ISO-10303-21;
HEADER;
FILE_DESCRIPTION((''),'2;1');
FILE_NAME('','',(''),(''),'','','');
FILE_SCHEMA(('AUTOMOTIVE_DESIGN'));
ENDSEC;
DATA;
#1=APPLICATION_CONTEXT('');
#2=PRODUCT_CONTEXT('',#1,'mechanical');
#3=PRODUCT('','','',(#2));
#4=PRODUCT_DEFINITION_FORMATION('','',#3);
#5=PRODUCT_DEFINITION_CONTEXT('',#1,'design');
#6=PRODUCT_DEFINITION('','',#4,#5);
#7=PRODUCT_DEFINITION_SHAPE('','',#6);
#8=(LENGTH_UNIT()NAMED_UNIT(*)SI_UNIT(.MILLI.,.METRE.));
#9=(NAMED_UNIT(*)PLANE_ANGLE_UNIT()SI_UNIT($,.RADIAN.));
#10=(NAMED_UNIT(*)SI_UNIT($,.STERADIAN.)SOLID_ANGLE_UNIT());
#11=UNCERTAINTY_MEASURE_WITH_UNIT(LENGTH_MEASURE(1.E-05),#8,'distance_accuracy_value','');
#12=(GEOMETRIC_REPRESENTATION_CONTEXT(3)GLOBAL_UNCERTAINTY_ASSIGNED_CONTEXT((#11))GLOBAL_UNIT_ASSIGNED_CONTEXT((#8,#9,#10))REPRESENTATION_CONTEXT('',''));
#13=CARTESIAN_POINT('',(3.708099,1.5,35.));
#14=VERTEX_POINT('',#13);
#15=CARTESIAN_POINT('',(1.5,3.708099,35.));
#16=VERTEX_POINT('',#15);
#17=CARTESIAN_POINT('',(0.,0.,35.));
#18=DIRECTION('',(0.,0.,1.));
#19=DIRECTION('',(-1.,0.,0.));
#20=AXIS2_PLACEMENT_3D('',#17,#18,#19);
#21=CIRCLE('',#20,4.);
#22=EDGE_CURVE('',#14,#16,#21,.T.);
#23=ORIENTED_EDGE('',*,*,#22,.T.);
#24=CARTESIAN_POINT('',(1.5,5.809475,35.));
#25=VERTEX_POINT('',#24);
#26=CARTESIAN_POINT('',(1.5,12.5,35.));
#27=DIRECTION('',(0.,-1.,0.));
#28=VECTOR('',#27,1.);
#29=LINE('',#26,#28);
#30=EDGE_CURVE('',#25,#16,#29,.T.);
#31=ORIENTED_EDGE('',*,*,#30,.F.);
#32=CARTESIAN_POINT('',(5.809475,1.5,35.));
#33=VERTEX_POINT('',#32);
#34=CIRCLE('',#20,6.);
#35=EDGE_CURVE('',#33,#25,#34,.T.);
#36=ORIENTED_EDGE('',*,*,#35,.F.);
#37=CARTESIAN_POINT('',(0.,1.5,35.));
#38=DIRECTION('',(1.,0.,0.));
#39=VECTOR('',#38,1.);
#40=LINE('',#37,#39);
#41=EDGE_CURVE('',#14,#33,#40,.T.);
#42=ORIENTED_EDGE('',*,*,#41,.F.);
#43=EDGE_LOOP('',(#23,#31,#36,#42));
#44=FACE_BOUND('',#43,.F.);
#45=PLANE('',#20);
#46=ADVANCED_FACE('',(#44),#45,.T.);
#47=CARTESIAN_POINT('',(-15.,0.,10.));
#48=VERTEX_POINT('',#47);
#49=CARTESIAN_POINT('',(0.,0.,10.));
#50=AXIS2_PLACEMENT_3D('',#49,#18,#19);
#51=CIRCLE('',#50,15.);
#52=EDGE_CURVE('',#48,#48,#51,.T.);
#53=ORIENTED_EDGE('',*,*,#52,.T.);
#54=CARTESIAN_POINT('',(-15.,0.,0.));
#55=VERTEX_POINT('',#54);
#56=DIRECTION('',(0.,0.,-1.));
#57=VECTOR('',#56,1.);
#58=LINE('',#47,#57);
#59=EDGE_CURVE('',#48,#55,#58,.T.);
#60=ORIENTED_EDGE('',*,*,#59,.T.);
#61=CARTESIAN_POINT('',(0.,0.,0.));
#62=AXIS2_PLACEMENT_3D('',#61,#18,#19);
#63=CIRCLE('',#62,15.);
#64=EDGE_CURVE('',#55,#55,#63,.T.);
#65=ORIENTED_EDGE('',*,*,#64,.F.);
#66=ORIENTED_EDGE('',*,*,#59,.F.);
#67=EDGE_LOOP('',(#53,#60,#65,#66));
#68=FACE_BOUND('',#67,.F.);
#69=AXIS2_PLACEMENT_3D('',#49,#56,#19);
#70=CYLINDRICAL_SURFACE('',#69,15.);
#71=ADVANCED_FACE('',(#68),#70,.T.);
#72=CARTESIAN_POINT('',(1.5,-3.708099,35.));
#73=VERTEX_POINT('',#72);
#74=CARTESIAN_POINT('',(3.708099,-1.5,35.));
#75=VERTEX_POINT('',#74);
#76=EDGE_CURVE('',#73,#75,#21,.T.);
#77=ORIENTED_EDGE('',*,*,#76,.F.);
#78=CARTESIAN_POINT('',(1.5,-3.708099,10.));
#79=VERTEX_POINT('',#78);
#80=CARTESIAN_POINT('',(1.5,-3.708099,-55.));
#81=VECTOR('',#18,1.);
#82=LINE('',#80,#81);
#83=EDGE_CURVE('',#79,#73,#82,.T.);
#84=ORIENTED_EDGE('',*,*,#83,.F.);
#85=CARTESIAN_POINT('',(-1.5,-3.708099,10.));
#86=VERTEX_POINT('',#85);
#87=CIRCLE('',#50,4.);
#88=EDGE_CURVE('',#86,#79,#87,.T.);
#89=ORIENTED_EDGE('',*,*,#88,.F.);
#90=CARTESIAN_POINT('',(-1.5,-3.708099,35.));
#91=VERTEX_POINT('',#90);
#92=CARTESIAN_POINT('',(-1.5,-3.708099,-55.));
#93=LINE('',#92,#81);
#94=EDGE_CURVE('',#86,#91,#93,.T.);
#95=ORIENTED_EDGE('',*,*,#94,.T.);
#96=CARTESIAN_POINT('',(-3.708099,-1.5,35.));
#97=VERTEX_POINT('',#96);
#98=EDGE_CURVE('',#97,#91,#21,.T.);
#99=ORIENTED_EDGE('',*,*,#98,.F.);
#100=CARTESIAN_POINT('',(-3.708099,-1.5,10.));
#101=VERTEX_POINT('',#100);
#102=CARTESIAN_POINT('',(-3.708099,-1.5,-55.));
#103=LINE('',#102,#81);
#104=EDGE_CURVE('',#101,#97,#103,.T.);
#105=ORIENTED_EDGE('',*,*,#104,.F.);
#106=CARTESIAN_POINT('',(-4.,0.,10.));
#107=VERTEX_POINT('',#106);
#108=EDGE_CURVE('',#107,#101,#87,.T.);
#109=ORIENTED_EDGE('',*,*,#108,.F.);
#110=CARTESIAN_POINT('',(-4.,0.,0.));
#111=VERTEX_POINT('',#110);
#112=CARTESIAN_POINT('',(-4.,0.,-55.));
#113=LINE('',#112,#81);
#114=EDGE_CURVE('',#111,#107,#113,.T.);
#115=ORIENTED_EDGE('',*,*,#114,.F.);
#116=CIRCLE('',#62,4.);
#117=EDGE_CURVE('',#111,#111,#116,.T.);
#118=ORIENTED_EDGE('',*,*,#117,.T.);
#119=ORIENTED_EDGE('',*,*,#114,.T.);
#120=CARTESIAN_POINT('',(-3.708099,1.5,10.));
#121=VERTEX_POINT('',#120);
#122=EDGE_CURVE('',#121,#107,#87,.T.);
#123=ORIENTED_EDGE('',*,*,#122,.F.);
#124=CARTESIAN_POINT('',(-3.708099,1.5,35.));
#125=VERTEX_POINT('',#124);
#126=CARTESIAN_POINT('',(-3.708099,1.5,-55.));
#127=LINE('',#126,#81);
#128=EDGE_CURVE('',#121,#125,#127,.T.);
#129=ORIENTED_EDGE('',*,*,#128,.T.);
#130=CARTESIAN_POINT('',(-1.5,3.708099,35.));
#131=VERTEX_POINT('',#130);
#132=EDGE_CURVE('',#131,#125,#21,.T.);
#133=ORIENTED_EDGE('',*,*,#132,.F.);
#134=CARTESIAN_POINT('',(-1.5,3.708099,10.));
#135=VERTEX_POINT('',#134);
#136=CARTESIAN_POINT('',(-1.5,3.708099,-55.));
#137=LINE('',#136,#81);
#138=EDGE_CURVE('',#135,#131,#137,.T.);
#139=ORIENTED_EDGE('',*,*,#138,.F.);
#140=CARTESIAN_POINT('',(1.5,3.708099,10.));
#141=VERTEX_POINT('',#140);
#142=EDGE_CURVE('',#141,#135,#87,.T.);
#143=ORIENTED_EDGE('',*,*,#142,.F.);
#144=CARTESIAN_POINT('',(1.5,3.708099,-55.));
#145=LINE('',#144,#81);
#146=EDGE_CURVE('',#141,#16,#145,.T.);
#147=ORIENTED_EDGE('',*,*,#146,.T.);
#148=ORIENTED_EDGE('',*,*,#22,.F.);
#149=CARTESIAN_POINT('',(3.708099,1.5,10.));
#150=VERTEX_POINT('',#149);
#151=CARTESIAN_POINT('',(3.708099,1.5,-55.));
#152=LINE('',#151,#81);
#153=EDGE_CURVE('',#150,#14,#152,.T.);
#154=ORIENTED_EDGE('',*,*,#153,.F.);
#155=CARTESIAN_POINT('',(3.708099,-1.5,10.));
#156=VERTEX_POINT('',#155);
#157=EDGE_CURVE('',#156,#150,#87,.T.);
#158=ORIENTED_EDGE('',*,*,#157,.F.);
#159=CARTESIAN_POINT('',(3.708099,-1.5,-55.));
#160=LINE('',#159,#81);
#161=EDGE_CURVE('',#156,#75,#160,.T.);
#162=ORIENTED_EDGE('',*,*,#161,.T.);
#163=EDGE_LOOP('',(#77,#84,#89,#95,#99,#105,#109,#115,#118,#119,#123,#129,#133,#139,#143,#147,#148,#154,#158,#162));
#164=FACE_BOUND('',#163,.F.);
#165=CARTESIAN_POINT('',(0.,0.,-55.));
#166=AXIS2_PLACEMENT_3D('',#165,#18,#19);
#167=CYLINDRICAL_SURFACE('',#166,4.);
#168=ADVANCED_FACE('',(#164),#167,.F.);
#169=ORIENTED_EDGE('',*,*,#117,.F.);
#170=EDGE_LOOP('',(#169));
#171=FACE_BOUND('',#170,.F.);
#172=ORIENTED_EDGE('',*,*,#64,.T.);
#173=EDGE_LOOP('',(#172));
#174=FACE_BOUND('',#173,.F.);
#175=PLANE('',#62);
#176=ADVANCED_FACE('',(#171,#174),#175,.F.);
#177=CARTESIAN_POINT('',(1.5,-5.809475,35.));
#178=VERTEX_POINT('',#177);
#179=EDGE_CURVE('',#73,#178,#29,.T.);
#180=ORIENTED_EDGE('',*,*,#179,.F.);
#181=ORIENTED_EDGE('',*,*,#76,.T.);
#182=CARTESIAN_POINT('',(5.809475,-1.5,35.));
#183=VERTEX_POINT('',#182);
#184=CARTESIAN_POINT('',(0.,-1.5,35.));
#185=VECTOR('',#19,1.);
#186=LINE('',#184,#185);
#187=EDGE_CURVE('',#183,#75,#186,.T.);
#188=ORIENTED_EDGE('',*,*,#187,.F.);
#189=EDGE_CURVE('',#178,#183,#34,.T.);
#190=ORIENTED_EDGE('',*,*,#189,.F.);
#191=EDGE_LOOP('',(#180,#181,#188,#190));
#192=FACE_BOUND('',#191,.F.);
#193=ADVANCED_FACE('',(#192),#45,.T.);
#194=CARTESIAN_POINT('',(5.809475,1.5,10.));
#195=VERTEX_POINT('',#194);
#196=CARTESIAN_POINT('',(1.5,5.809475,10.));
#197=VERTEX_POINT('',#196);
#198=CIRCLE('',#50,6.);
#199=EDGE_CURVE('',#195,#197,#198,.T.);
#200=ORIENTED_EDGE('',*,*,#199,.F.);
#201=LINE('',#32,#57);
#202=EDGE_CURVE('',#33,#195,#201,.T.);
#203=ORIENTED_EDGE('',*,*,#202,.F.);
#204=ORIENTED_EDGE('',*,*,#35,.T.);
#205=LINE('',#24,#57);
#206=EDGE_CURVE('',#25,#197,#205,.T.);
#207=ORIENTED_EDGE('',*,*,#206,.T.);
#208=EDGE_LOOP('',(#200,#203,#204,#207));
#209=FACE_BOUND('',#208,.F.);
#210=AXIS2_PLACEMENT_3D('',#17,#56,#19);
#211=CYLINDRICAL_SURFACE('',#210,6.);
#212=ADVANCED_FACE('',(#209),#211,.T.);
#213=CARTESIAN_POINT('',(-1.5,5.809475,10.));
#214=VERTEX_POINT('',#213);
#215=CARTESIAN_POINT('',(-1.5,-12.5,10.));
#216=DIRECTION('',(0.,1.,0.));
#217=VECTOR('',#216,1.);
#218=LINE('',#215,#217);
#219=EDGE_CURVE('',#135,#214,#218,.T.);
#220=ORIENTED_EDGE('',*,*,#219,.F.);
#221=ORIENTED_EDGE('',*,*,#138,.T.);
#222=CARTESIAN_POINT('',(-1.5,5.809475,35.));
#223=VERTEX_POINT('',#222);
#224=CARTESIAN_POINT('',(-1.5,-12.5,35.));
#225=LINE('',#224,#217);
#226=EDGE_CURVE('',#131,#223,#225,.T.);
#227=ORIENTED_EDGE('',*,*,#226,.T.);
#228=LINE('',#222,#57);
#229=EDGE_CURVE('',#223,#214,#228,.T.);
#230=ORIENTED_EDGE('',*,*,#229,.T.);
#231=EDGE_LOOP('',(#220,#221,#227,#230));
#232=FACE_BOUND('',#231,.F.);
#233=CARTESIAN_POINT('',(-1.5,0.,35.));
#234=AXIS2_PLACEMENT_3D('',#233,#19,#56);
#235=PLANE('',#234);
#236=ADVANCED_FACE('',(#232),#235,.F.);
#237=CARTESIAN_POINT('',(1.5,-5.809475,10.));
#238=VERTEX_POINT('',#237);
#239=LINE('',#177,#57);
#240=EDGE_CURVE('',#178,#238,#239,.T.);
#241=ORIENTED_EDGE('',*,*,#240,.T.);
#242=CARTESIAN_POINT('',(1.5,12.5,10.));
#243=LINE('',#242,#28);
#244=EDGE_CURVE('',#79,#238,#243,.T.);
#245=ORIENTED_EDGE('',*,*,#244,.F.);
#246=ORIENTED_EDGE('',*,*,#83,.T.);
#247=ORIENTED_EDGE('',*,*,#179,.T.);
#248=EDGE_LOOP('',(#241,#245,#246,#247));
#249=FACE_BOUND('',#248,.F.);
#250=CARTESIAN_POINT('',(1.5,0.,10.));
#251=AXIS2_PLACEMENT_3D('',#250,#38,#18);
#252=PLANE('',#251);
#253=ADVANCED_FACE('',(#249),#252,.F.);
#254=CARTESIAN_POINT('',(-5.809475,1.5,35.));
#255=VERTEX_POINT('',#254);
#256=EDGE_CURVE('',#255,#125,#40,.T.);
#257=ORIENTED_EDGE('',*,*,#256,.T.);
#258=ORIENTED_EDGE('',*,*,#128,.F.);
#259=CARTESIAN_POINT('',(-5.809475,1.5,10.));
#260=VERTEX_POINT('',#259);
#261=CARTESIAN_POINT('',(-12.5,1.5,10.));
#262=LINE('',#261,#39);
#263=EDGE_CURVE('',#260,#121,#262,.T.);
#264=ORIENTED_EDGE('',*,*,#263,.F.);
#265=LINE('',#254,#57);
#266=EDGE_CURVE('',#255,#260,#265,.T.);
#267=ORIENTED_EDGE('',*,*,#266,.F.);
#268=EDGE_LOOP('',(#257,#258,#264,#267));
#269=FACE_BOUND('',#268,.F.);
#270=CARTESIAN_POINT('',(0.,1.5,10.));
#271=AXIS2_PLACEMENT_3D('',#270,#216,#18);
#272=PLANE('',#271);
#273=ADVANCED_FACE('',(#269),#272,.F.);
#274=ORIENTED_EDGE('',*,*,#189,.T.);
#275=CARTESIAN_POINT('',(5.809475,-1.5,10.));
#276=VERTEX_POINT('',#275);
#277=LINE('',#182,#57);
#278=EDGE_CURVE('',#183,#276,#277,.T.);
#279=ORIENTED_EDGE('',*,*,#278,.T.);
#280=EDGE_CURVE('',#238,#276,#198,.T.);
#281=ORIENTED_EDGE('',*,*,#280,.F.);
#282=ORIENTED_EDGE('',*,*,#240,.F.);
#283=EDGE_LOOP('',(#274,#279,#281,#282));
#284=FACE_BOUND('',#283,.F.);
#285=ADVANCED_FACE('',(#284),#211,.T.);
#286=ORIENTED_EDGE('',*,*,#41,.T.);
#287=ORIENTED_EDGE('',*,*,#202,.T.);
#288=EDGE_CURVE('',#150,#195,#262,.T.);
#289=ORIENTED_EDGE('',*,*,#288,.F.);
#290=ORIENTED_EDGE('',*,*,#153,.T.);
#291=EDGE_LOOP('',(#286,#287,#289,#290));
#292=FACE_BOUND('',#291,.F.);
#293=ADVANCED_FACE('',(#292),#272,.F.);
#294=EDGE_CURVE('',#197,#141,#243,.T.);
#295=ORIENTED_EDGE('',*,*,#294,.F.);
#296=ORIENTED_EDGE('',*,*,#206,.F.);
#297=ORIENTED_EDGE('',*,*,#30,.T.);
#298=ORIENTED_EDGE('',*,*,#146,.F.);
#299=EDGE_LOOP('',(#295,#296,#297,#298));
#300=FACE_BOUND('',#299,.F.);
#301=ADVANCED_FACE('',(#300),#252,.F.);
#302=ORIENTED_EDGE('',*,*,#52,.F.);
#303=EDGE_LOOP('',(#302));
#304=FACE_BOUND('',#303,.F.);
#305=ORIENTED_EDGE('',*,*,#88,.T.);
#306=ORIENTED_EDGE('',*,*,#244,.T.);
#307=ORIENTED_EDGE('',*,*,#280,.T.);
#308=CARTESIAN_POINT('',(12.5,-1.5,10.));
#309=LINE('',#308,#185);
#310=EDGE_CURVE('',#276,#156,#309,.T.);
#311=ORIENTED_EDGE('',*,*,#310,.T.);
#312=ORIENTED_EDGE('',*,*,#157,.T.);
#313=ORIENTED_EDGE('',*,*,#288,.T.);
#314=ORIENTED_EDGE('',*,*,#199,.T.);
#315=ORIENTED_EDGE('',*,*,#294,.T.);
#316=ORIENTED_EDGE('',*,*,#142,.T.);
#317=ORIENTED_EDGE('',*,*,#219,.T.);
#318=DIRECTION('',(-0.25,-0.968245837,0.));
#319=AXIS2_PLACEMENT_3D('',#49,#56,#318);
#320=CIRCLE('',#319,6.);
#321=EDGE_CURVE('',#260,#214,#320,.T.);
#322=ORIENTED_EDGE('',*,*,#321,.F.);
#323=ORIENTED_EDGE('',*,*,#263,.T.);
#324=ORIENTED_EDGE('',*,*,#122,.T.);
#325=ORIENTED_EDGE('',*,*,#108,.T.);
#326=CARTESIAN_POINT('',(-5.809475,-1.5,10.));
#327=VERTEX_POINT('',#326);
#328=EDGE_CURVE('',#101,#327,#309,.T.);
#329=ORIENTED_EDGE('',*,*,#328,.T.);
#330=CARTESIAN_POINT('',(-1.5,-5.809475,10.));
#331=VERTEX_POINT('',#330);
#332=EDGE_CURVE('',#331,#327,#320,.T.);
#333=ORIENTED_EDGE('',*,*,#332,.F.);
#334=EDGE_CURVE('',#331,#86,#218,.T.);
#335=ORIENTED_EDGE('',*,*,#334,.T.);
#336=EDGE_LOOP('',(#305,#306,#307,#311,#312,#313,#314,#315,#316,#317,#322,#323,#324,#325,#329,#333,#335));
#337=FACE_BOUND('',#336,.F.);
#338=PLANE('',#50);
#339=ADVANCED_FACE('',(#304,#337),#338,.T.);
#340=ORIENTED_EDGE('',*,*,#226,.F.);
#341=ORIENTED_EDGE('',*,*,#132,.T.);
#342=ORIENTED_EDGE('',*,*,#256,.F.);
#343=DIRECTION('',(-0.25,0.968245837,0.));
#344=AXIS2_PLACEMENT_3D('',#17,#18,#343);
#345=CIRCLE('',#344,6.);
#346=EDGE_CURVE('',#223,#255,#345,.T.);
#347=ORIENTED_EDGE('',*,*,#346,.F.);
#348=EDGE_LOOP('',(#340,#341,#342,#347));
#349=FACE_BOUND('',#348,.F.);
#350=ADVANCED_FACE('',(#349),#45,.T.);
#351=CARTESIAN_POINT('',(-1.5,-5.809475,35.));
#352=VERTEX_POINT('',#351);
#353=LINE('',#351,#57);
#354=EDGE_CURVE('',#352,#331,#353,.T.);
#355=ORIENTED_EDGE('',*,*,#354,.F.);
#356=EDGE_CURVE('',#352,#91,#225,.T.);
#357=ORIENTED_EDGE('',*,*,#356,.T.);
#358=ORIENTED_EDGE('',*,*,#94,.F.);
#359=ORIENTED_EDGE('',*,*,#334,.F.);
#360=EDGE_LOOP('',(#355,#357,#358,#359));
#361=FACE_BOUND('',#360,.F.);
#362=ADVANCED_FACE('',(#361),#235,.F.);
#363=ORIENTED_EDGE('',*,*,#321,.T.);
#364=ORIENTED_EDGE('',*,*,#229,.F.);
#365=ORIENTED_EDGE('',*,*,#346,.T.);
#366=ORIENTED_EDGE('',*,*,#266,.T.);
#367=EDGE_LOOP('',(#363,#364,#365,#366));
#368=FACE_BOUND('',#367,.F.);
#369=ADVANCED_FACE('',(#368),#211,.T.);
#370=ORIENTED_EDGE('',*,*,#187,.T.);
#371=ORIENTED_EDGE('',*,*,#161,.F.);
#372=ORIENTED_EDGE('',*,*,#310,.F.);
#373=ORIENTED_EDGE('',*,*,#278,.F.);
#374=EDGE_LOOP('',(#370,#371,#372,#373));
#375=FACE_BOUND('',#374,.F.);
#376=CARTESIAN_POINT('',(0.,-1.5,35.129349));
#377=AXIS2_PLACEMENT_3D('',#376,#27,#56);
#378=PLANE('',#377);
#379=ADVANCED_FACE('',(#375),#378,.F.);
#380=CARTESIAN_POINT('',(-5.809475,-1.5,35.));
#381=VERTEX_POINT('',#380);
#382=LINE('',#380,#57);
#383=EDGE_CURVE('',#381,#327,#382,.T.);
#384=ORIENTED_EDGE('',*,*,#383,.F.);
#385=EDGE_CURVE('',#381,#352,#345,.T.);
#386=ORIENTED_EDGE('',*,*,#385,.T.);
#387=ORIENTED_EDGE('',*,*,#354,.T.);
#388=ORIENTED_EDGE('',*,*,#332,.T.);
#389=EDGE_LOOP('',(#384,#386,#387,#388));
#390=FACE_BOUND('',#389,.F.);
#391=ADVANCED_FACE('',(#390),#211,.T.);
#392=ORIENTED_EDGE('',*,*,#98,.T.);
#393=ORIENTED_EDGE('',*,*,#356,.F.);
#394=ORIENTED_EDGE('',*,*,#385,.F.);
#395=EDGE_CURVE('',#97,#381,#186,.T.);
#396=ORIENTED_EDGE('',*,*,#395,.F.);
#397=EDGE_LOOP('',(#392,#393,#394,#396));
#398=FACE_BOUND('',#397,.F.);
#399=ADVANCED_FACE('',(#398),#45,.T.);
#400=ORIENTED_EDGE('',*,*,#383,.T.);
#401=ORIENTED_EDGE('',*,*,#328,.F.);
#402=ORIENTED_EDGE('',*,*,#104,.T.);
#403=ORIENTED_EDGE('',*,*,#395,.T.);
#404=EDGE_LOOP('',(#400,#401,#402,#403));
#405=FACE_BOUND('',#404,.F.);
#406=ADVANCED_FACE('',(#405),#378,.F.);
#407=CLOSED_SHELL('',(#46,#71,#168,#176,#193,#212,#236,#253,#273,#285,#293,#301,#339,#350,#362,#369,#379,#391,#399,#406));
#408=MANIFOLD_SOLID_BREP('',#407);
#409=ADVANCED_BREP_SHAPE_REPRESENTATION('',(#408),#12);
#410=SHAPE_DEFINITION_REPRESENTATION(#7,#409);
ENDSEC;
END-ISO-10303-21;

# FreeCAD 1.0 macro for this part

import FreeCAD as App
import Part
import Sketcher
from FreeCAD import Vector
Q = App.Units.Quantity

doc = App.newDocument("Part")
body = doc.addObject("PartDesign::Body", "Body")

# Sketch on XZ plane
sketch1 = body.newObject("Sketcher::SketchObject", "Sketch")
sketch1.AttachmentSupport = (doc.getObject("XZ_Plane"), [""])
sketch1.MapMode = "FlatFace"
sketch1.addGeometry(Part.LineSegment(Vector(-15, 0, 0), Vector(0, 0, 0)), False)
sketch1.addGeometry(Part.LineSegment(Vector(0, 0, 0), Vector(0, 35, 0)), False)
sketch1.addGeometry(Part.LineSegment(Vector(0, 35, 0), Vector(-6, 35, 0)), False)
sketch1.addGeometry(Part.LineSegment(Vector(-6, 35, 0), Vector(-6, 10, 0)), False)
sketch1.addGeometry(Part.LineSegment(Vector(-6, 10, 0), Vector(-15, 10, 0)), False)
sketch1.addGeometry(Part.LineSegment(Vector(-15, 10, 0), Vector(-15, 0, 0)), False)
sketch1.addConstraint(Sketcher.Constraint("Coincident", 0, 2, 1, 1))
sketch1.addConstraint(Sketcher.Constraint("Coincident", 1, 2, 2, 1))
sketch1.addConstraint(Sketcher.Constraint("Coincident", 2, 2, 3, 1))
sketch1.addConstraint(Sketcher.Constraint("Coincident", 3, 2, 4, 1))
sketch1.addConstraint(Sketcher.Constraint("Coincident", 4, 2, 5, 1))
sketch1.addConstraint(Sketcher.Constraint("Coincident", 5, 2, 0, 1))
sketch1.addConstraint(Sketcher.Constraint("Horizontal", 0))
sketch1.addConstraint(Sketcher.Constraint("Vertical", 1))
sketch1.addConstraint(Sketcher.Constraint("Horizontal", 2))
sketch1.addConstraint(Sketcher.Constraint("Vertical", 3))
sketch1.addConstraint(Sketcher.Constraint("Horizontal", 4))
sketch1.addConstraint(Sketcher.Constraint("Vertical", 5))
sketch1.addConstraint(Sketcher.Constraint("Coincident", 0, 2, -1, 1))
sketch1.addConstraint(Sketcher.Constraint("DistanceX", 0, 1, 0, 2, Q("15 mm")))
sketch1.addConstraint(Sketcher.Constraint("DistanceX", 2, 2, 2, 1, Q("6 mm")))
sketch1.addConstraint(Sketcher.Constraint("DistanceY", 1, 1, 1, 2, Q("35 mm")))
sketch1.addConstraint(Sketcher.Constraint("DistanceY", 3, 2, 3, 1, Q("25 mm")))
revolution = body.newObject("PartDesign::Revolution", "Revolution")
revolution.Profile = sketch1
revolution.ReferenceAxis = (sketch1, ["V_Axis"])
revolution.Angle = 360

# Sketch on XY plane
sketch2 = body.newObject("Sketcher::SketchObject", "Sketch001")
sketch2.AttachmentSupport = (doc.getObject("XY_Plane"), [""])
sketch2.MapMode = "FlatFace"
sketch2.addGeometry(Part.Circle(Vector(0, 0, 0), Vector(0, 0, 1), 4), False)
sketch2.addConstraint(Sketcher.Constraint("Coincident", 0, 3, -1, 1))
sketch2.addConstraint(Sketcher.Constraint("Diameter", 0, Q("8 mm")))
doc.recompute()
hole = body.newObject("PartDesign::Hole", "Hole")
hole.Profile = sketch2
hole.ThreadType = "None"
hole.Diameter = 8
hole.DepthType = "ThroughAll"
hole.Reversed = True

# Sketch on XZ plane
sketch3 = body.newObject("Sketcher::SketchObject", "Sketch002")
sketch3.AttachmentSupport = (doc.getObject("XZ_Plane"), [""])
sketch3.MapMode = "FlatFace"
sketch3.addGeometry(Part.LineSegment(Vector(-1.5, 10, 0), Vector(1.5, 10, 0)), False)
sketch3.addGeometry(Part.LineSegment(Vector(1.5, 10, 0), Vector(1.5, 35, 0)), False)
sketch3.addGeometry(Part.LineSegment(Vector(1.5, 35, 0), Vector(-1.5, 35, 0)), False)
sketch3.addGeometry(Part.LineSegment(Vector(-1.5, 35, 0), Vector(-1.5, 10, 0)), False)
sketch3.addConstraint(Sketcher.Constraint("Coincident", 0, 2, 1, 1))
sketch3.addConstraint(Sketcher.Constraint("Coincident", 1, 2, 2, 1))
sketch3.addConstraint(Sketcher.Constraint("Coincident", 2, 2, 3, 1))
sketch3.addConstraint(Sketcher.Constraint("Coincident", 3, 2, 0, 1))
sketch3.addConstraint(Sketcher.Constraint("Horizontal", 0))
sketch3.addConstraint(Sketcher.Constraint("Vertical", 1))
sketch3.addConstraint(Sketcher.Constraint("Horizontal", 2))
sketch3.addConstraint(Sketcher.Constraint("Vertical", 3))
sketch3.addConstraint(Sketcher.Constraint("DistanceX", 0, 1, 0, 2, Q("3 mm")))
sketch3.addConstraint(Sketcher.Constraint("DistanceY", 1, 1, 1, 2, Q("25 mm")))
sketch3.addConstraint(Sketcher.Constraint("DistanceY", -1, 1, 0, 2, Q("10 mm")))
sketch3.addConstraint(Sketcher.Constraint("DistanceX", -1, 1, 0, 2, Q("1.5 mm")))
pocket1 = body.newObject("PartDesign::Pocket", "Pocket")
pocket1.Profile = sketch3
pocket1.Length = 25
pocket1.Midplane = True

# Sketch on YZ plane
sketch4 = body.newObject("Sketcher::SketchObject", "Sketch003")
sketch4.AttachmentSupport = (doc.getObject("YZ_Plane"), [""])
sketch4.MapMode = "FlatFace"
sketch4.addGeometry(Part.LineSegment(Vector(-1.5, 10, 0), Vector(1.5, 10, 0)), False)
sketch4.addGeometry(Part.LineSegment(Vector(1.5, 10, 0), Vector(1.5, 35.1, 0)), False)
sketch4.addGeometry(Part.LineSegment(Vector(1.5, 35.1, 0), Vector(-1.5, 35.1, 0)), False)
sketch4.addGeometry(Part.LineSegment(Vector(-1.5, 35.1, 0), Vector(-1.5, 10, 0)), False)
sketch4.addConstraint(Sketcher.Constraint("Coincident", 0, 2, 1, 1))
sketch4.addConstraint(Sketcher.Constraint("Coincident", 1, 2, 2, 1))
sketch4.addConstraint(Sketcher.Constraint("Coincident", 2, 2, 3, 1))
sketch4.addConstraint(Sketcher.Constraint("Coincident", 3, 2, 0, 1))
sketch4.addConstraint(Sketcher.Constraint("Horizontal", 0))
sketch4.addConstraint(Sketcher.Constraint("Vertical", 1))
sketch4.addConstraint(Sketcher.Constraint("Horizontal", 2))
sketch4.addConstraint(Sketcher.Constraint("Vertical", 3))
sketch4.addConstraint(Sketcher.Constraint("DistanceX", 0, 1, 0, 2, Q("3 mm")))
sketch4.addConstraint(Sketcher.Constraint("DistanceY", -1, 1, 0, 2, Q("10 mm")))
sketch4.addConstraint(Sketcher.Constraint("DistanceX", -1, 1, 0, 2, Q("1.5 mm")))
sketch4.addConstraint(Sketcher.Constraint("DistanceY", 1, 1, 1, 2, Q("25.129349 mm")))
pocket2 = body.newObject("PartDesign::Pocket", "Pocket001")
pocket2.Profile = sketch4
pocket2.Length = 25
pocket2.Midplane = True

doc.recompute()
